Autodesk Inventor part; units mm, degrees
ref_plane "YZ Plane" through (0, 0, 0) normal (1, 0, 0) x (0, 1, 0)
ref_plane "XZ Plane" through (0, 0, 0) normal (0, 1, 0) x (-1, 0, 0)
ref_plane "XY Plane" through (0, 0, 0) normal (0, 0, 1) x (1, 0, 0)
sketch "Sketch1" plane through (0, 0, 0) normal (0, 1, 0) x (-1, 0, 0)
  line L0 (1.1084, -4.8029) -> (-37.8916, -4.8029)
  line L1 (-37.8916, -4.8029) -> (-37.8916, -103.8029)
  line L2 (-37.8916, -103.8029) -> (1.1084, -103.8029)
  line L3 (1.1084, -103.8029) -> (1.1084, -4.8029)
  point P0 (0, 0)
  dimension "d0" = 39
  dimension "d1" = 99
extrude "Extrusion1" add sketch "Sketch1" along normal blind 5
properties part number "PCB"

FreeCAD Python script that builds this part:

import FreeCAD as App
import Part
import Sketcher
Q = App.Units.Quantity


def add_polygon(sketch, points):
    """Adds a closed chain of lines whose ends are joined by coincident constraints."""
    first, n = sketch.GeometryCount, len(points)
    for a, b in zip(points, points[1:] + points[:1]):
        sketch.addGeometry(Part.LineSegment(App.Vector(*a, 0), App.Vector(*b, 0)), False)
    for i in range(n):
        sketch.addConstraint(Sketcher.Constraint("Coincident", first + i, 2, first + (i + 1) % n, 1))

doc = App.newDocument("Part")
body = doc.addObject("PartDesign::Body", "Body")

# Sketch on XZ plane
sketch1 = body.newObject("Sketcher::SketchObject", "Sketch")
sketch1.AttachmentSupport = (doc.getObject("XZ_Plane"), [""])
sketch1.MapMode = "FlatFace"
add_polygon(sketch1, [(-1, -104), (-1, -5), (38, -5), (38, -104)])  # lines 0-3
sketch1.addConstraint([
    Sketcher.Constraint("Vertical", 0),
    Sketcher.Constraint("Horizontal", 1),
    Sketcher.Constraint("Vertical", 2),
    Sketcher.Constraint("Horizontal", 3),
    Sketcher.Constraint("DistanceX", 1, 1, 1, 2, Q("39 mm")),
    Sketcher.Constraint("DistanceY", 0, 1, 0, 2, Q("99 mm")),
    Sketcher.Constraint("DistanceY", 0, 2, -1, 1, Q("4.803 mm")),
    Sketcher.Constraint("DistanceX", 0, 2, -1, 1, Q("1.1084 mm")),
])
pad1 = body.newObject("PartDesign::Pad", "Pad")
pad1.Profile = sketch1
pad1.Length = 5
pad1.Reversed = True

doc.recompute()
